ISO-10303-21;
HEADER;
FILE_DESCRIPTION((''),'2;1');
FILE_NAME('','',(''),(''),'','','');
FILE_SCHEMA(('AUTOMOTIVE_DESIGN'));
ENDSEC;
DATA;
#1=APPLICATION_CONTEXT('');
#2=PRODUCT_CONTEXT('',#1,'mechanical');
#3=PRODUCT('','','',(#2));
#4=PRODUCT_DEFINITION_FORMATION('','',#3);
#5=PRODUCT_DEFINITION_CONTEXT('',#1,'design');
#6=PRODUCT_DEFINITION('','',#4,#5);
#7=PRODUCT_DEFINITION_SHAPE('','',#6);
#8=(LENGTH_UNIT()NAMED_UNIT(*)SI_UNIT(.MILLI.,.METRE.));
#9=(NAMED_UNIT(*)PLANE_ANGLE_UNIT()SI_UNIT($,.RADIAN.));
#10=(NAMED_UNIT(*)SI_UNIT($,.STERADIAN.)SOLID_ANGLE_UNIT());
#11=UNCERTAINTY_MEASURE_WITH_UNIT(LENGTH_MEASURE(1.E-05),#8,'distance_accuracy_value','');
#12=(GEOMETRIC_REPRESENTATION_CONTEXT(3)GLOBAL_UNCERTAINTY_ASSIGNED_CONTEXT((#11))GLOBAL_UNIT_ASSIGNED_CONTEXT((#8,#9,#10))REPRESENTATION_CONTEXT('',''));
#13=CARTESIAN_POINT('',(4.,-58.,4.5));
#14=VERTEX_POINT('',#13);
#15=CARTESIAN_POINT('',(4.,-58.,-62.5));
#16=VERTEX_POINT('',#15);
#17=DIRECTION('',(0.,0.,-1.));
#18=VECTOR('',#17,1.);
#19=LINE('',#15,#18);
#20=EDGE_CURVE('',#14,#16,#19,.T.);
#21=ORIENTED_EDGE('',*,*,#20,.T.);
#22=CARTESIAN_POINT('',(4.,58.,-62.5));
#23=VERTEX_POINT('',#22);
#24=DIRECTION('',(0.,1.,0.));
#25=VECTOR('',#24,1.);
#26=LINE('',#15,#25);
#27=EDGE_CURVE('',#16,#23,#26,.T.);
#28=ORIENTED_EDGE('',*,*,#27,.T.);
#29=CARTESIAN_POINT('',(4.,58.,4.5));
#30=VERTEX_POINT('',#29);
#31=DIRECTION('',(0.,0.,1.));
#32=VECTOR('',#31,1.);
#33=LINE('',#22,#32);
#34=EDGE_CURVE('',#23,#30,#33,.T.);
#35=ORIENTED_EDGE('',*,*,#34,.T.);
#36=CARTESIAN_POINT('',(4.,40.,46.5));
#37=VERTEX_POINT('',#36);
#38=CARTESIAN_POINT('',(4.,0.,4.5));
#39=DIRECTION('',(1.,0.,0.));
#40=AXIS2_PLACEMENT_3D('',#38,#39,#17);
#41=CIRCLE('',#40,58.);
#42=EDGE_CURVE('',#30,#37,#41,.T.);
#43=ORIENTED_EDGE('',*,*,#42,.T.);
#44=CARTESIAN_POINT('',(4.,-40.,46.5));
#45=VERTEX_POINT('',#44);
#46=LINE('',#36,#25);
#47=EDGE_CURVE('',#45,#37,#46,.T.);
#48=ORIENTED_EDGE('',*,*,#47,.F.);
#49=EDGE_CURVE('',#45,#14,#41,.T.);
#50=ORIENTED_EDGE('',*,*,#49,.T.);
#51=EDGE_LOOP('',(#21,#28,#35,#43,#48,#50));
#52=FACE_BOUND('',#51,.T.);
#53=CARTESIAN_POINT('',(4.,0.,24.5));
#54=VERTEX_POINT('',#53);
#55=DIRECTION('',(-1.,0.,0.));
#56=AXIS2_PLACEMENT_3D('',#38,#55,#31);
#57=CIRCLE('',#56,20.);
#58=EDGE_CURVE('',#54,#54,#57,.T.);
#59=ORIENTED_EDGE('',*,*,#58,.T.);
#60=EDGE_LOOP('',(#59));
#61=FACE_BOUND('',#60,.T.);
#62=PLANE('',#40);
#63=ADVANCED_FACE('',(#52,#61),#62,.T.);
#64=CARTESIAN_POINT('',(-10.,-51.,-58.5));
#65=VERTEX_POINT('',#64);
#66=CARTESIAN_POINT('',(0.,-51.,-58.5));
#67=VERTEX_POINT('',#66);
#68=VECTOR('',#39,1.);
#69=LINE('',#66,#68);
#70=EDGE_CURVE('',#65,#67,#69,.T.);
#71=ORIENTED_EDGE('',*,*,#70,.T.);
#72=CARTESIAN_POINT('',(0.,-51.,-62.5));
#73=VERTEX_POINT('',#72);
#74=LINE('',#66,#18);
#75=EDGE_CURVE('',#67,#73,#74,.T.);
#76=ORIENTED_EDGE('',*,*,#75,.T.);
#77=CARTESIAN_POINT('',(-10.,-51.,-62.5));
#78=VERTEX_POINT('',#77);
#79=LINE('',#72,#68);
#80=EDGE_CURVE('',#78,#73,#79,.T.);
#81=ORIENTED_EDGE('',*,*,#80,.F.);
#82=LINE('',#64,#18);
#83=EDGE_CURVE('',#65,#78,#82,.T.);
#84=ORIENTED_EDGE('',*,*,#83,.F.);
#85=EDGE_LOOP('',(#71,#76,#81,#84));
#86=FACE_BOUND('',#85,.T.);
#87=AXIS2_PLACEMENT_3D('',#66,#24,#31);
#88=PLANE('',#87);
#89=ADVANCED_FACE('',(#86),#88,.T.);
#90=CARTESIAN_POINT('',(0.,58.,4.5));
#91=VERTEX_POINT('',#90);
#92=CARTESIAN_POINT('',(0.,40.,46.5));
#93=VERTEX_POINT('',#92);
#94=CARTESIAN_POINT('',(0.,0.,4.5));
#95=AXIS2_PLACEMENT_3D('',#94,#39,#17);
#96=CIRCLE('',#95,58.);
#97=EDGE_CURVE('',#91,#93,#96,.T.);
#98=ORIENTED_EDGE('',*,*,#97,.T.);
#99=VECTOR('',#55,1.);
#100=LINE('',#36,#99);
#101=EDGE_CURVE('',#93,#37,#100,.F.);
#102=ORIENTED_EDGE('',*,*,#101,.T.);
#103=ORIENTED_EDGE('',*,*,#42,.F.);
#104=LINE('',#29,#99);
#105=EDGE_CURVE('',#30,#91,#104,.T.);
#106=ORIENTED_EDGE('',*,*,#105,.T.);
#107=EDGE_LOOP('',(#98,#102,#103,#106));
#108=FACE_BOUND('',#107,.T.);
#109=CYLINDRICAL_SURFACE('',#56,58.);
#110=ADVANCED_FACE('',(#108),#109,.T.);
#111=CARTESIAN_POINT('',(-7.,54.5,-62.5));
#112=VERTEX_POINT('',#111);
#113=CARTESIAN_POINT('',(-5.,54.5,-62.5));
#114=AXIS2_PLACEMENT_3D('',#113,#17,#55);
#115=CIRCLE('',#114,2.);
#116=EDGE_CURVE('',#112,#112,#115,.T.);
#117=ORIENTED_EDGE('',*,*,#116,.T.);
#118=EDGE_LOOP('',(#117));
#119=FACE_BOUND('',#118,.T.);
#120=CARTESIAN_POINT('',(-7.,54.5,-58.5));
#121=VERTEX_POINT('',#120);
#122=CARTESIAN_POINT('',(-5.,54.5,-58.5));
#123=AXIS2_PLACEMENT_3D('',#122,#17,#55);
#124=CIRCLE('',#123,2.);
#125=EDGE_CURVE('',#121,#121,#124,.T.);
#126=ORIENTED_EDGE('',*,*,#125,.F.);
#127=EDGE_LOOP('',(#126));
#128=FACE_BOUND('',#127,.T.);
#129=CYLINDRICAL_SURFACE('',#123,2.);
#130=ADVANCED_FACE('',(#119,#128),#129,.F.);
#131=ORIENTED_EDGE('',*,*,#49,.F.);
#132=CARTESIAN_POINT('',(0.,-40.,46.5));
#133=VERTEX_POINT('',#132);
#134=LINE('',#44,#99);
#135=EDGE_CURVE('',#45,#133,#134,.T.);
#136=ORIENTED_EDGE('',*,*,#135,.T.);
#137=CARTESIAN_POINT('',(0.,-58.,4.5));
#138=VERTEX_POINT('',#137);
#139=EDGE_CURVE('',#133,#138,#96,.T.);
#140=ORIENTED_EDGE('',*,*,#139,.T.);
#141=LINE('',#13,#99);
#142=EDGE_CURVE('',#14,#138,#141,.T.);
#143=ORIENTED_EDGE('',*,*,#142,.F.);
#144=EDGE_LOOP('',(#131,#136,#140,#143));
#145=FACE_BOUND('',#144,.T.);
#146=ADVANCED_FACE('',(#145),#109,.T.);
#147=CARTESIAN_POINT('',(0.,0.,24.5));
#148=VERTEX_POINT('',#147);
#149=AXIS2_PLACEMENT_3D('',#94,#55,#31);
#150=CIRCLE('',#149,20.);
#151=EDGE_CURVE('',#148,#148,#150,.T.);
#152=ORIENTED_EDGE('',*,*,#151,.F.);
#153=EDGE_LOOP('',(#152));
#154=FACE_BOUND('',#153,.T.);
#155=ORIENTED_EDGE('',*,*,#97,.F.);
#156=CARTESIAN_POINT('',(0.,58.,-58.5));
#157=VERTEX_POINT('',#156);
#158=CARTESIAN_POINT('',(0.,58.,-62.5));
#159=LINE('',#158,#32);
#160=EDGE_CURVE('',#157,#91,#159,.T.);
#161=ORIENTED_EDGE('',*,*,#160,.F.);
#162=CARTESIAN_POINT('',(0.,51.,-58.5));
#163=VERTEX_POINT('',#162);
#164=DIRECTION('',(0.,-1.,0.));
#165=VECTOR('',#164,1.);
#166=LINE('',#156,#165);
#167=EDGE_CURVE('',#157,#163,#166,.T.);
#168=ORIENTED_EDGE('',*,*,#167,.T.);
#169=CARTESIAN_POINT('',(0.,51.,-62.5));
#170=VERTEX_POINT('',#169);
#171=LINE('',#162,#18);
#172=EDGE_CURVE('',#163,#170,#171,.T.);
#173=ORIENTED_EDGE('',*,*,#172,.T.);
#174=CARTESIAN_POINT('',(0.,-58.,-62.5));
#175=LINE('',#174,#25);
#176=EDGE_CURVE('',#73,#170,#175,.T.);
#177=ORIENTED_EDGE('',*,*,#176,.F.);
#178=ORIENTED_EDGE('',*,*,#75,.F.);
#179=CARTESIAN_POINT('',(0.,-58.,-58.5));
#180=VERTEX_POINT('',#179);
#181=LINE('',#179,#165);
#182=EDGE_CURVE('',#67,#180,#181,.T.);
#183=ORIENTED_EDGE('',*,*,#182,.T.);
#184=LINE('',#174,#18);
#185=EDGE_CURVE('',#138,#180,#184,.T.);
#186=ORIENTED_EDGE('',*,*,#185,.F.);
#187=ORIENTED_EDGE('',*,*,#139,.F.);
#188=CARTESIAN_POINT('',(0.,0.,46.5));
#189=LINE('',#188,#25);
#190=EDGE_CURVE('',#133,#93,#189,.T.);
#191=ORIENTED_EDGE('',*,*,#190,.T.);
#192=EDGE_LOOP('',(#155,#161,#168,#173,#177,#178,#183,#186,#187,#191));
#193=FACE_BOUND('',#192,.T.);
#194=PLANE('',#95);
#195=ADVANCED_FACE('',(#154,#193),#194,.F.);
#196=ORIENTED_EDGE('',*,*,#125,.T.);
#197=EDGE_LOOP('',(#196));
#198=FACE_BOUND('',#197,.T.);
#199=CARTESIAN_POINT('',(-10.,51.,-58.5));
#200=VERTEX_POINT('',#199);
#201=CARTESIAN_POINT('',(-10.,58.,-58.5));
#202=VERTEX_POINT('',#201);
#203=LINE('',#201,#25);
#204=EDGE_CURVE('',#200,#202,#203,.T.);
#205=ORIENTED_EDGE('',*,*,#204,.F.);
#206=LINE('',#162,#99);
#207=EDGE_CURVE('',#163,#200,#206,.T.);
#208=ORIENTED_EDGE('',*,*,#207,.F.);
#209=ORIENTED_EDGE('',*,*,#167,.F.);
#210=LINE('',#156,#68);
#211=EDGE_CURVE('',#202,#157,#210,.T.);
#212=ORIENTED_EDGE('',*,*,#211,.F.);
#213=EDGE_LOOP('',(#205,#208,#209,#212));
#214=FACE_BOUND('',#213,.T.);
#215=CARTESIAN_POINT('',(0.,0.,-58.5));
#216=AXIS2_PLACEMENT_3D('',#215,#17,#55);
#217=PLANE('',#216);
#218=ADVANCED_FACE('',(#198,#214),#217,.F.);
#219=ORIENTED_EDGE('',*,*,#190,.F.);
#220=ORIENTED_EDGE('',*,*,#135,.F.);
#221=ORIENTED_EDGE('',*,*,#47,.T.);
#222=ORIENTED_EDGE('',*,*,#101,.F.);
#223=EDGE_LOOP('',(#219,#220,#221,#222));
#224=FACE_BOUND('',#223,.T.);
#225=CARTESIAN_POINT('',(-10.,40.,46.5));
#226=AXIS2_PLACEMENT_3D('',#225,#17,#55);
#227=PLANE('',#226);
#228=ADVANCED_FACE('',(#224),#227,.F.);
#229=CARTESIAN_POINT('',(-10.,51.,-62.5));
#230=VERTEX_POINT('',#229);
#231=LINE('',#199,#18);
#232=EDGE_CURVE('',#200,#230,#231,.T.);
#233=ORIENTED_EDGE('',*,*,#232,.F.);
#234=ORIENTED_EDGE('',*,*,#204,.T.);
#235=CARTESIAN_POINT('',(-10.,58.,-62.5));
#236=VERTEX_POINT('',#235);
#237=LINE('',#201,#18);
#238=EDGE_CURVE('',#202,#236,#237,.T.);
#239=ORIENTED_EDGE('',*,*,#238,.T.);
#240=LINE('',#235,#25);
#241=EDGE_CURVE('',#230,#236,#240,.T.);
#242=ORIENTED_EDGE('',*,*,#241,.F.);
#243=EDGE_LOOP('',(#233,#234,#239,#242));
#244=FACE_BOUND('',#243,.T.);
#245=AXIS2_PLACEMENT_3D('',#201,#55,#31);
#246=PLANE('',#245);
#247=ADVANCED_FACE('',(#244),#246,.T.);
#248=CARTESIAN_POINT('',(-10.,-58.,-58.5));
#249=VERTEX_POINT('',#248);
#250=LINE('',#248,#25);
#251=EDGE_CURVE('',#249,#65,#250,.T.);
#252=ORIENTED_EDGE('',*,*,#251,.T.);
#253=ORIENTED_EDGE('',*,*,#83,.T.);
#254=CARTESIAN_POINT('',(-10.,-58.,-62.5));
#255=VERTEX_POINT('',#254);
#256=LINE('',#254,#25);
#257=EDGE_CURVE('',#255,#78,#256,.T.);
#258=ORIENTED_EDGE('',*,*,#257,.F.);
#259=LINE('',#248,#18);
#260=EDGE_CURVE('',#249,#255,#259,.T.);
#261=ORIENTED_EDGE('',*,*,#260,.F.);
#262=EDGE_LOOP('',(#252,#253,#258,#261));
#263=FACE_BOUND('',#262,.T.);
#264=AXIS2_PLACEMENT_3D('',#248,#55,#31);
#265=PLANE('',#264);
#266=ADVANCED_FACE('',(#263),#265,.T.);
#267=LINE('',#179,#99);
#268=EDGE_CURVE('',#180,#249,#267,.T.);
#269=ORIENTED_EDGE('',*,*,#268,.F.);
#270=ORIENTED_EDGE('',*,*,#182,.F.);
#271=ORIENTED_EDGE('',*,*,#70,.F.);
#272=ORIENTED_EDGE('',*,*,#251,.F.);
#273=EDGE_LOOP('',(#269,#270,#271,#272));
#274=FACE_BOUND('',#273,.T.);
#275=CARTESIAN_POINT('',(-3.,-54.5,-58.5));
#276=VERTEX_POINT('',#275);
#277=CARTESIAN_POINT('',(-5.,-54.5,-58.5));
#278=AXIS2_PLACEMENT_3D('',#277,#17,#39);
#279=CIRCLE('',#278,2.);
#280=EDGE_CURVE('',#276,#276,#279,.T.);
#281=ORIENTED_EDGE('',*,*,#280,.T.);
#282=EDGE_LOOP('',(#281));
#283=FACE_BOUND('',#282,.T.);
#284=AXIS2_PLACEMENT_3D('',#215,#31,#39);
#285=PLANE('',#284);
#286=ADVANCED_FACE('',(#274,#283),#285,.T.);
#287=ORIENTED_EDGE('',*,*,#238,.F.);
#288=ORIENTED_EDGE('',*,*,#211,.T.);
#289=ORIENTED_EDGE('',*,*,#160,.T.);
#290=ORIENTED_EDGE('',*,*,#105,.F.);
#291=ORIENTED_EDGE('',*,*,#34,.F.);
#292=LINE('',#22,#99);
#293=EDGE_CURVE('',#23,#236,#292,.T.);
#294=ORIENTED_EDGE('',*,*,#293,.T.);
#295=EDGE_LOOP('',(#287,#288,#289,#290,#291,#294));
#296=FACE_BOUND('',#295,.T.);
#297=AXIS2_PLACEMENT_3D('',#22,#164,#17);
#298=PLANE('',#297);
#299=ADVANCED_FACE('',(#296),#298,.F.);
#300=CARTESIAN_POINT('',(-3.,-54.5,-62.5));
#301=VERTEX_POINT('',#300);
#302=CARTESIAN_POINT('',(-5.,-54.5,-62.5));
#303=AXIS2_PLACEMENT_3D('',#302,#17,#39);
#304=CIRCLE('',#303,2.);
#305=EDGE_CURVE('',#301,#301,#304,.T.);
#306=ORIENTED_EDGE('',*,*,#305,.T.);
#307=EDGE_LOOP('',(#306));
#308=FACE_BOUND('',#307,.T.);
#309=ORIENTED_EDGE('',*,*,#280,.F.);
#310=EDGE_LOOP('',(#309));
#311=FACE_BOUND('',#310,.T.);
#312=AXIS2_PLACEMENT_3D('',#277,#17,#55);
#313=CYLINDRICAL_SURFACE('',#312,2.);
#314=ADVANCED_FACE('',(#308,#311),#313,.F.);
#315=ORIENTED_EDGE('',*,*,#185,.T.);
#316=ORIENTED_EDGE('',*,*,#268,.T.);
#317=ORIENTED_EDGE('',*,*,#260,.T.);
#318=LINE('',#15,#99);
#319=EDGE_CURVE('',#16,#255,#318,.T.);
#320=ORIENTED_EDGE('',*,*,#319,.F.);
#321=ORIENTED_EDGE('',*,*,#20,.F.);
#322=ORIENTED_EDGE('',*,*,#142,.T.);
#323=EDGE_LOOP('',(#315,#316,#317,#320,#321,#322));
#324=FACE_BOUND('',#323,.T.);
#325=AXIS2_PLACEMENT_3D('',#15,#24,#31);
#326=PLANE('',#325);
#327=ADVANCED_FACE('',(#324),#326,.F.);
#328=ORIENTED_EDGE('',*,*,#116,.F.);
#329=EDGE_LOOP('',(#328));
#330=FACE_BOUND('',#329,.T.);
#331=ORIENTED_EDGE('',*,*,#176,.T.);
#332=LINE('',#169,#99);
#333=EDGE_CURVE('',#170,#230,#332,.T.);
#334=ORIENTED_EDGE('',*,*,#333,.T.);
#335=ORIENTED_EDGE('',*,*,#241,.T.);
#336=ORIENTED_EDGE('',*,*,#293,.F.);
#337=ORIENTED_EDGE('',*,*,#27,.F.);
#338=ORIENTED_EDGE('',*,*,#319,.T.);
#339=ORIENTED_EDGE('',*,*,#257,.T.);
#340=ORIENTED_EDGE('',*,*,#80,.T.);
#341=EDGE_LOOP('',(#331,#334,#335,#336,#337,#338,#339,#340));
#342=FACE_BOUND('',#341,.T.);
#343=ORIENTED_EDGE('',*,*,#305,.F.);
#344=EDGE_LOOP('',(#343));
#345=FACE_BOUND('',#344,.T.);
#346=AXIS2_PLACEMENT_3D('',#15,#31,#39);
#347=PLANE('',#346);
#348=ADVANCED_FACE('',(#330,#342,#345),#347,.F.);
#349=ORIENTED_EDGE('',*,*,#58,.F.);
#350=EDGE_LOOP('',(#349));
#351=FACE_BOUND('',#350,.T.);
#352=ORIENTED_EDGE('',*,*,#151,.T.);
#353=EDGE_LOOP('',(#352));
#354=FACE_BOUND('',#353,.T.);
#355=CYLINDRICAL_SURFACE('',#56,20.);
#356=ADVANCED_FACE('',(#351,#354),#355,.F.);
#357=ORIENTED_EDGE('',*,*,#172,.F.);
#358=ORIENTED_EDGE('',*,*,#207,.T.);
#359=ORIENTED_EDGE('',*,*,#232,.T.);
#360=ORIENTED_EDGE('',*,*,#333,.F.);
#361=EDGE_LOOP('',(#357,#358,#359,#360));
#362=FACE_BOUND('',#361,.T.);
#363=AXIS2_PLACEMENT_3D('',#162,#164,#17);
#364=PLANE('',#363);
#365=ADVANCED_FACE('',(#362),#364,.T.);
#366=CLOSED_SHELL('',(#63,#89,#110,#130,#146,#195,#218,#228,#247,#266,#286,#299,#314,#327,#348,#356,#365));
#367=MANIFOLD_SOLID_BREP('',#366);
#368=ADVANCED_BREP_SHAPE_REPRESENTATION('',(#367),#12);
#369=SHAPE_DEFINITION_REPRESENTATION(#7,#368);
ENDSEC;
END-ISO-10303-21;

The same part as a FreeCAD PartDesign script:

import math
import FreeCAD as App
import Part
import Sketcher

V = App.Vector
Q = App.Units.Quantity


def add_polygon(sketch, points):
    """Adds a closed chain of lines whose ends are joined by coincident constraints."""
    first, n = sketch.GeometryCount, len(points)
    for a, b in zip(points, points[1:] + points[:1]):
        sketch.addGeometry(Part.LineSegment(App.Vector(*a, 0), App.Vector(*b, 0)), False)
    for i in range(n):
        sketch.addConstraint(Sketcher.Constraint("Coincident", first + i, 2, first + (i + 1) % n, 1))

doc = App.newDocument("Part")
body = doc.addObject("PartDesign::Body", "Body")

sketch1 = doc.addObject("Sketcher::SketchObject", "Sketch")
body.addObject(sketch1)
sketch1.AttachmentSupport = (doc.YZ_Plane, [""])
sketch1.MapMode = "FlatFace"
sketch1.addGeometry([
    Part.LineSegment(V(58, -62, 0), V(58, 4, 0)),
    Part.ArcOfCircle(Part.Circle(V(0, 4, 0), V(0, 0, 1), 58), math.radians(0), math.radians(180)),
    Part.LineSegment(V(-58, 4, 0), V(-58, -62, 0)),
    Part.LineSegment(V(-58, -62, 0), V(58, -62, 0)),
    Part.Circle(V(0, 4, 0), V(0, 0, 1), 12),
], False)
sketch1.addConstraint([
    Sketcher.Constraint("Tangent", 0, 2, 1, 1),
    Sketcher.Constraint("Tangent", 1, 2, 2, 1),
    Sketcher.Constraint("Coincident", 2, 2, 3, 1),
    Sketcher.Constraint("Coincident", 3, 2, 0, 1),
    Sketcher.Constraint("Vertical", 0),
    Sketcher.Constraint("Vertical", 2),
    Sketcher.Constraint("Horizontal", 3),
    Sketcher.Constraint("Coincident", 4, 3, 1, 3),
    Sketcher.Constraint("PointOnObject", 1, 3, -2),
    Sketcher.Constraint("Diameter", 4, Q("24 mm")),
    Sketcher.Constraint("Radius", 1, Q("58 mm")),
    Sketcher.Constraint("DistanceY", 0, 1, 0, 2, Q("67 mm")),
    Sketcher.Constraint("DistanceY", -1, 1, 1, 3, Q("4.5 mm")),
])
pad1 = doc.addObject("PartDesign::Pad", "Pad")
body.addObject(pad1)
pad1.Profile = sketch1
pad1.Length = 4

sketch2 = doc.addObject("Sketcher::SketchObject", "Sketch001")
body.addObject(sketch2)
sketch2.AttachmentSupport = (doc.XY_Plane, [""])
sketch2.MapMode = "FlatFace"
sketch2.AttachmentOffset = App.Placement(V(0, 0, -62.5), App.Rotation())
add_polygon(sketch2, [(0, 58), (0, 51), (-10, 51), (-10, 58)])
sketch2.addGeometry(Part.Circle(V(-5, 54.5, 0), V(0, 0, 1), 2), False)
add_polygon(sketch2, [(0, -51), (0, -58), (-10, -58), (-10, -51)])
sketch2.addGeometry(Part.Circle(V(-5, -54.5, 0), V(0, 0, 1), 2), False)
sketch2.addConstraint([
    Sketcher.Constraint("Vertical", 0),
    Sketcher.Constraint("Horizontal", 1),
    Sketcher.Constraint("Vertical", 2),
    Sketcher.Constraint("Horizontal", 3),
    Sketcher.Constraint("Vertical", 5),
    Sketcher.Constraint("Horizontal", 6),
    Sketcher.Constraint("Vertical", 7),
    Sketcher.Constraint("Horizontal", 8),
    Sketcher.Constraint("Equal", 4, 9),
    Sketcher.Constraint("Symmetric", 3, 2, 5, 2, -1, 1),
    Sketcher.Constraint("Symmetric", 4, 3, 9, 3, -1),
    Sketcher.Constraint("Symmetric", 1, 2, 7, 2, -1),
    Sketcher.Constraint("PointOnObject", 0, 2, -2),
    Sketcher.Constraint("Diameter", 4, Q("4 mm")),
    Sketcher.Constraint("DistanceX", 1, 2, 1, 1, Q("10 mm")),
    Sketcher.Constraint("DistanceY", 0, 2, 0, 1, Q("7 mm")),
    Sketcher.Constraint("DistanceX", 4, 3, -1, 1, Q("5 mm")),
    Sketcher.Constraint("DistanceY", -1, 1, 0, 2, Q("51 mm")),
    Sketcher.Constraint("DistanceY", 9, 3, 4, 3, Q("109 mm")),
])
pad2 = doc.addObject("PartDesign::Pad", "Pad001")
body.addObject(pad2)
pad2.Profile = sketch2
pad2.Length = 4

sketch3 = doc.addObject("Sketcher::SketchObject", "Sketch002")
body.addObject(sketch3)
sketch3.AttachmentSupport = (doc.YZ_Plane, [""])
sketch3.MapMode = "FlatFace"
sketch3.addGeometry(Part.Circle(V(0, 4, 0), V(0, 0, 1), 20), False)
sketch3.addConstraint([
    Sketcher.Constraint("PointOnObject", 0, 3, -2),
    Sketcher.Constraint("Diameter", 0, Q("40 mm")),
    Sketcher.Constraint("DistanceY", -1, 1, 0, 3, Q("4.5 mm")),
])
pocket1 = doc.addObject("PartDesign::Pocket", "Pocket")
body.addObject(pocket1)
pocket1.Profile = sketch3
pocket1.Type = "ThroughAll"
pocket1.Reversed = True

sketch4 = doc.addObject("Sketcher::SketchObject", "Sketch003")
body.addObject(sketch4)
sketch4.AttachmentSupport = (doc.YZ_Plane, [""])
sketch4.MapMode = "FlatFace"
sketch4.AttachmentOffset = App.Placement(V(0, 0, 4), App.Rotation())
sketch4.addGeometry([
    Part.LineSegment(V(-40, 46, 0), V(40, 46, 0)),
    Part.ArcOfCircle(Part.Circle(V(0, 4, 0), V(0, 0, 1), 58), math.radians(46), math.radians(134)),
], False)
sketch4.addConstraint([
    Sketcher.Constraint("Coincident", 0, 1, 1, 2),
    Sketcher.Constraint("Coincident", 1, 1, 0, 2),
    Sketcher.Constraint("Horizontal", 0),
    Sketcher.Constraint("PointOnObject", 1, 3, -2),
    Sketcher.Constraint("Radius", 1, Q("58 mm")),
    Sketcher.Constraint("DistanceX", 0, 1, 0, 2, Q("80 mm")),
    Sketcher.Constraint("DistanceY", -1, 1, 1, 3, Q("4.5 mm")),
])
pocket2 = doc.addObject("PartDesign::Pocket", "Pocket001")
body.addObject(pocket2)
pocket2.Profile = sketch4
pocket2.Type = "ThroughAll"

doc.recompute()
